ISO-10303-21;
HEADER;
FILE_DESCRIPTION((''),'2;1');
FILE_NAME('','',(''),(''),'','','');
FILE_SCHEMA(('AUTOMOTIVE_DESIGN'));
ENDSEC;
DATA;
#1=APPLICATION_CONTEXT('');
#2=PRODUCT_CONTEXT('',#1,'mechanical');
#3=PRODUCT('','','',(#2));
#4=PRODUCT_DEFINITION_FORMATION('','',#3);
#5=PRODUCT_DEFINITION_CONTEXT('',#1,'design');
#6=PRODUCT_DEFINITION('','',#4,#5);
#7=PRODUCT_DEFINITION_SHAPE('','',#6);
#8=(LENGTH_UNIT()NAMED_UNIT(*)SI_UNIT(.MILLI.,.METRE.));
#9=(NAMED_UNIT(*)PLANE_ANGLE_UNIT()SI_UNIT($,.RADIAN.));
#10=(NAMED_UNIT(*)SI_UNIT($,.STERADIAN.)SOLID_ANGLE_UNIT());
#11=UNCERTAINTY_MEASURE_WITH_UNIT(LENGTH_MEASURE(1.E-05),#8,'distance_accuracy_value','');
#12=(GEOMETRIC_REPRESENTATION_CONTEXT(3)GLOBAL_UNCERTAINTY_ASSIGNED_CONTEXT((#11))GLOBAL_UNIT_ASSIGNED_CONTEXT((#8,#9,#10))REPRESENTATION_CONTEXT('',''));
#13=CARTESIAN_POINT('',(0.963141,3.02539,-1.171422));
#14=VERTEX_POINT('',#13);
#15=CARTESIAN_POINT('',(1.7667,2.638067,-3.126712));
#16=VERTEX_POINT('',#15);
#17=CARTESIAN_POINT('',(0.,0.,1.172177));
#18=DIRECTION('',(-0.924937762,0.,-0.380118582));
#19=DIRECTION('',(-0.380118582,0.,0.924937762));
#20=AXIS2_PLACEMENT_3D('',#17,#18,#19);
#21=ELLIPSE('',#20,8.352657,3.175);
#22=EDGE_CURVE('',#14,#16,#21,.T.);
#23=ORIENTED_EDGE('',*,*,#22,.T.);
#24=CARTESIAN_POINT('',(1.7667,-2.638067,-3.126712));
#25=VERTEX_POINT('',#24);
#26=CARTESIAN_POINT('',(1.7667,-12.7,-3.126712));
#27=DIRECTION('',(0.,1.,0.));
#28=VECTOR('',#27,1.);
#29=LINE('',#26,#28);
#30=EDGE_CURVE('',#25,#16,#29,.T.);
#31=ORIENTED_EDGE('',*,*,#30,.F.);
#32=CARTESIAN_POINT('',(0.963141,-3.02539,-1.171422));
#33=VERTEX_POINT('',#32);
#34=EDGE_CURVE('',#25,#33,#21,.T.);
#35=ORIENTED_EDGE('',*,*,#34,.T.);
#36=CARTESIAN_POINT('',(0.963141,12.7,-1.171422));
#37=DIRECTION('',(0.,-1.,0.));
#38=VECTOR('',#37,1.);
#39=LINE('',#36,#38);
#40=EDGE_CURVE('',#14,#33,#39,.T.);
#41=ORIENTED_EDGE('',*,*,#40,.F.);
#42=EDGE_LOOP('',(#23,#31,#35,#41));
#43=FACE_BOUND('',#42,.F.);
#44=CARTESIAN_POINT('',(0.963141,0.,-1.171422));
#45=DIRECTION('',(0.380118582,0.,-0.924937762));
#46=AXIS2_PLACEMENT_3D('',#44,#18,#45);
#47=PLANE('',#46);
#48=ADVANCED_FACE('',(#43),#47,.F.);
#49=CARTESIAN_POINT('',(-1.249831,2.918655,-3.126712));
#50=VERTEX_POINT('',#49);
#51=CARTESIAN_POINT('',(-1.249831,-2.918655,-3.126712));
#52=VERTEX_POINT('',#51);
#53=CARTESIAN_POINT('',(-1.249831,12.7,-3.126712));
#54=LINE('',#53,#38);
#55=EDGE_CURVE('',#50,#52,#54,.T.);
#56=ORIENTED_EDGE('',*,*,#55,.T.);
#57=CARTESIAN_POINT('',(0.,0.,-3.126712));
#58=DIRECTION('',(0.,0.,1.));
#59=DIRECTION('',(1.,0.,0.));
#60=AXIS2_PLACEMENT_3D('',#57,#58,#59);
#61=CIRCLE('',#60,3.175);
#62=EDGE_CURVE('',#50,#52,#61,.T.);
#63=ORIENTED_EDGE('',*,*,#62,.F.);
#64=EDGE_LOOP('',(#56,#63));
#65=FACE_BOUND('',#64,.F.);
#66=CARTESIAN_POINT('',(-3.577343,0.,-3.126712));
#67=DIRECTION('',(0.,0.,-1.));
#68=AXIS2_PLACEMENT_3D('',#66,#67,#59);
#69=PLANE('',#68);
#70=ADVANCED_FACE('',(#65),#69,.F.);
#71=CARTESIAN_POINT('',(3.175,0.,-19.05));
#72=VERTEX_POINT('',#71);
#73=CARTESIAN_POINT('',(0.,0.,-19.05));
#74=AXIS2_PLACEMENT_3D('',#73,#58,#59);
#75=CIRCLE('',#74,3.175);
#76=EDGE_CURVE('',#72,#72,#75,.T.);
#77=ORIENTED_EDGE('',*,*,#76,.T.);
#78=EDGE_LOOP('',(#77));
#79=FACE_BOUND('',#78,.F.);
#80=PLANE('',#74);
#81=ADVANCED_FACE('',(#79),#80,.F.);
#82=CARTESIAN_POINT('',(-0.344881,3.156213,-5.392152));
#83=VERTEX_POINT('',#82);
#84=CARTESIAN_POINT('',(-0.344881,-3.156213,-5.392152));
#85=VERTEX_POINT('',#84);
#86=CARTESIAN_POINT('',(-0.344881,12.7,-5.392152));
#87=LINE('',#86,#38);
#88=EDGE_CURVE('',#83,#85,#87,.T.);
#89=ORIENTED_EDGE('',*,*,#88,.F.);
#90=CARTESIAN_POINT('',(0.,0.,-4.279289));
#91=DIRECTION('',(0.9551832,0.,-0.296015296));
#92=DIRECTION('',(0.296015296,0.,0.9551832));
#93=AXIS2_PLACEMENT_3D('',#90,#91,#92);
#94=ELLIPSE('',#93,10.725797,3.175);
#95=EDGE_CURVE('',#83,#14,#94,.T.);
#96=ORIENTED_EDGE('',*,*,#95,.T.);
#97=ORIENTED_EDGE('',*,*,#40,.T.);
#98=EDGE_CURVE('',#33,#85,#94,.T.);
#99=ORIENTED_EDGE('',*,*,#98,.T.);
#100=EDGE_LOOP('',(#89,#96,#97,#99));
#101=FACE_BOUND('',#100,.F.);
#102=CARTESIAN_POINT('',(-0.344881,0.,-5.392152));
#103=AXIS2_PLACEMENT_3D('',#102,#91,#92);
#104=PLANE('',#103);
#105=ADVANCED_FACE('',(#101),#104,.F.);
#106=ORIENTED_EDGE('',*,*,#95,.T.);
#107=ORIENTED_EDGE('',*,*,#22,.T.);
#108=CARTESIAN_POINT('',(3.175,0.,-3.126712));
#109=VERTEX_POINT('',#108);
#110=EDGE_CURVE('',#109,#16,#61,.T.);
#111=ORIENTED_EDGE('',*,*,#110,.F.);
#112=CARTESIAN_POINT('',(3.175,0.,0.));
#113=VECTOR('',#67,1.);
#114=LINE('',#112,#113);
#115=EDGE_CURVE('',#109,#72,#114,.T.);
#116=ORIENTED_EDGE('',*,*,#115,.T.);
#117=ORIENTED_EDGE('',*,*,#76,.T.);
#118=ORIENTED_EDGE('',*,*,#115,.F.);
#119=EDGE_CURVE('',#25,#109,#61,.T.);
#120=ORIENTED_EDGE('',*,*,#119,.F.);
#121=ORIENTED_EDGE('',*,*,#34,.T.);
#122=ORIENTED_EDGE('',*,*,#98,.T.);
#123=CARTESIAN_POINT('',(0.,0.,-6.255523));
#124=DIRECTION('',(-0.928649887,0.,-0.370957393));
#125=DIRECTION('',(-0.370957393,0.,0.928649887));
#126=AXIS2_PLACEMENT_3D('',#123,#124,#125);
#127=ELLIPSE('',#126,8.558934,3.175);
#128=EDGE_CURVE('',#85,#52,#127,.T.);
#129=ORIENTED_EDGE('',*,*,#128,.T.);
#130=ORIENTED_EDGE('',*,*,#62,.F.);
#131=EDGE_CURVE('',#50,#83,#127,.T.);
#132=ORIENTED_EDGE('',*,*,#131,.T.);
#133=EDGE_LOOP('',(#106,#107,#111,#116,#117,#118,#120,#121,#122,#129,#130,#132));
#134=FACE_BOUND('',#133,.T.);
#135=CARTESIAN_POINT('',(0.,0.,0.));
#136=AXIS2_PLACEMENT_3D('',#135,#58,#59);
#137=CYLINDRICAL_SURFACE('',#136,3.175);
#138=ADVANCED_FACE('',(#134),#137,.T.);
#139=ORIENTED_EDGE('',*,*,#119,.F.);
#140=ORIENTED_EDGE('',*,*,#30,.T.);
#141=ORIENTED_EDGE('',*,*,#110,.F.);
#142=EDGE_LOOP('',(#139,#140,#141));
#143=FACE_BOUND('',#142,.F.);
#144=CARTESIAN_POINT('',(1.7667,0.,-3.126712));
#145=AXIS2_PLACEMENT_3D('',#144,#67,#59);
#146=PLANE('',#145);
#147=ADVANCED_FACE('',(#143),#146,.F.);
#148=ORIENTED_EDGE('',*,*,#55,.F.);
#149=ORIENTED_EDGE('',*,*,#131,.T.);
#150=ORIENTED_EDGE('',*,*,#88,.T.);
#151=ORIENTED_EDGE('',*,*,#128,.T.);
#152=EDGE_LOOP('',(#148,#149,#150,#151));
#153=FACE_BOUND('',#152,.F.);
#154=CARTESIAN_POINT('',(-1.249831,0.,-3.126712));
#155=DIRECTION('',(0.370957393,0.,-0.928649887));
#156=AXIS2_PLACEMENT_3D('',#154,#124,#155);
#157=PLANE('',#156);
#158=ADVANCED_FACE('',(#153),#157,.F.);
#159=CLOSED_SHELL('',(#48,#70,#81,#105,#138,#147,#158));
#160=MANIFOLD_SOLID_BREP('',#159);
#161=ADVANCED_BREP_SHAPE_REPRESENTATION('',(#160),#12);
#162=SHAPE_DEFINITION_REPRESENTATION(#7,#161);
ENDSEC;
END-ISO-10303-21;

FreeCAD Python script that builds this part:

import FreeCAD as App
import Part
import Sketcher
from FreeCAD import Vector
Q = App.Units.Quantity


def add_polygon(sketch, points):
    """Adds a closed chain of lines whose ends are joined by coincident constraints."""
    first, n = sketch.GeometryCount, len(points)
    for a, b in zip(points, points[1:] + points[:1]):
        sketch.addGeometry(Part.LineSegment(App.Vector(*a, 0), App.Vector(*b, 0)), False)
    for i in range(n):
        sketch.addConstraint(Sketcher.Constraint("Coincident", first + i, 2, first + (i + 1) % n, 1))

doc = App.newDocument("Part")
body = doc.addObject("PartDesign::Body", "Body")

# Sketch on XY plane
sketch1 = body.newObject("Sketcher::SketchObject", "Sketch")
sketch1.AttachmentSupport = (doc.getObject("XY_Plane"), [""])
sketch1.MapMode = "FlatFace"
sketch1.addGeometry(Part.Circle(Vector(0, 0, 0), Vector(0, 0, 1), 3.2), False)
sketch1.addConstraint([
    Sketcher.Constraint("Coincident", 0, 3, -1, 1),
    Sketcher.Constraint("Diameter", 0, Q("0.25 in")),
])
pad1 = body.newObject("PartDesign::Pad", "Pad")
pad1.Profile = sketch1
pad1.Length = Q("0.75 in")
pad1.Reversed = True

# Sketch on XZ plane
sketch2 = body.newObject("Sketcher::SketchObject", "Sketch001")
sketch2.AttachmentSupport = (doc.getObject("XZ_Plane"), [""])
sketch2.MapMode = "FlatFace"
add_polygon(sketch2, [(3.4, 0.1), (-3.6, 0.1), (-3.6, -3.1), (-1.2, -3.1), (-0.3, -5.4), (1, -1.2), (1.8, -3.1), (3.5, -3.1)])  # lines 0-7
sketch2.addConstraint([
    Sketcher.Constraint("Horizontal", 0),
    Sketcher.Constraint("Vertical", 1),
    Sketcher.Constraint("Horizontal", 2),
    Sketcher.Constraint("Horizontal", 6),
    Sketcher.Constraint("Horizontal", 2, 2, 5, 2),
    Sketcher.Constraint("Distance", 3, Q("2.439498 mm")),
    Sketcher.Constraint("DistanceX", 2, 1, 2, 2, Q("2.327512 mm")),
    Sketcher.Constraint("DistanceY", 1, 2, 1, 1, Q("3.22397 mm")),
    Sketcher.Constraint("DistanceX", -1, 1, 5, 2, Q("1.7667 mm")),
    Sketcher.Constraint("DistanceX", 4, 2, 7, 2, Q("2.447099 mm")),
    Sketcher.Constraint("Distance", 5, Q("2.113969 mm")),
    Sketcher.Constraint("DistanceX", 0, 2, 0, 1, Q("6.987583 mm")),
    Sketcher.Constraint("DistanceX", 6, 1, 6, 2, Q("1.735652 mm")),
    Sketcher.Constraint("DistanceY", 1, 2, -1, 1, Q("3.126712 mm")),
    Sketcher.Constraint("DistanceX", 2, 2, -1, 1, Q("1.249831 mm")),
    Sketcher.Constraint("DistanceX", 3, 2, -1, 1, Q("0.344881 mm")),
])
pocket1 = body.newObject("PartDesign::Pocket", "Pocket")
pocket1.Profile = sketch2
pocket1.Length = Q("1 in")
pocket1.Midplane = True

doc.recompute()
